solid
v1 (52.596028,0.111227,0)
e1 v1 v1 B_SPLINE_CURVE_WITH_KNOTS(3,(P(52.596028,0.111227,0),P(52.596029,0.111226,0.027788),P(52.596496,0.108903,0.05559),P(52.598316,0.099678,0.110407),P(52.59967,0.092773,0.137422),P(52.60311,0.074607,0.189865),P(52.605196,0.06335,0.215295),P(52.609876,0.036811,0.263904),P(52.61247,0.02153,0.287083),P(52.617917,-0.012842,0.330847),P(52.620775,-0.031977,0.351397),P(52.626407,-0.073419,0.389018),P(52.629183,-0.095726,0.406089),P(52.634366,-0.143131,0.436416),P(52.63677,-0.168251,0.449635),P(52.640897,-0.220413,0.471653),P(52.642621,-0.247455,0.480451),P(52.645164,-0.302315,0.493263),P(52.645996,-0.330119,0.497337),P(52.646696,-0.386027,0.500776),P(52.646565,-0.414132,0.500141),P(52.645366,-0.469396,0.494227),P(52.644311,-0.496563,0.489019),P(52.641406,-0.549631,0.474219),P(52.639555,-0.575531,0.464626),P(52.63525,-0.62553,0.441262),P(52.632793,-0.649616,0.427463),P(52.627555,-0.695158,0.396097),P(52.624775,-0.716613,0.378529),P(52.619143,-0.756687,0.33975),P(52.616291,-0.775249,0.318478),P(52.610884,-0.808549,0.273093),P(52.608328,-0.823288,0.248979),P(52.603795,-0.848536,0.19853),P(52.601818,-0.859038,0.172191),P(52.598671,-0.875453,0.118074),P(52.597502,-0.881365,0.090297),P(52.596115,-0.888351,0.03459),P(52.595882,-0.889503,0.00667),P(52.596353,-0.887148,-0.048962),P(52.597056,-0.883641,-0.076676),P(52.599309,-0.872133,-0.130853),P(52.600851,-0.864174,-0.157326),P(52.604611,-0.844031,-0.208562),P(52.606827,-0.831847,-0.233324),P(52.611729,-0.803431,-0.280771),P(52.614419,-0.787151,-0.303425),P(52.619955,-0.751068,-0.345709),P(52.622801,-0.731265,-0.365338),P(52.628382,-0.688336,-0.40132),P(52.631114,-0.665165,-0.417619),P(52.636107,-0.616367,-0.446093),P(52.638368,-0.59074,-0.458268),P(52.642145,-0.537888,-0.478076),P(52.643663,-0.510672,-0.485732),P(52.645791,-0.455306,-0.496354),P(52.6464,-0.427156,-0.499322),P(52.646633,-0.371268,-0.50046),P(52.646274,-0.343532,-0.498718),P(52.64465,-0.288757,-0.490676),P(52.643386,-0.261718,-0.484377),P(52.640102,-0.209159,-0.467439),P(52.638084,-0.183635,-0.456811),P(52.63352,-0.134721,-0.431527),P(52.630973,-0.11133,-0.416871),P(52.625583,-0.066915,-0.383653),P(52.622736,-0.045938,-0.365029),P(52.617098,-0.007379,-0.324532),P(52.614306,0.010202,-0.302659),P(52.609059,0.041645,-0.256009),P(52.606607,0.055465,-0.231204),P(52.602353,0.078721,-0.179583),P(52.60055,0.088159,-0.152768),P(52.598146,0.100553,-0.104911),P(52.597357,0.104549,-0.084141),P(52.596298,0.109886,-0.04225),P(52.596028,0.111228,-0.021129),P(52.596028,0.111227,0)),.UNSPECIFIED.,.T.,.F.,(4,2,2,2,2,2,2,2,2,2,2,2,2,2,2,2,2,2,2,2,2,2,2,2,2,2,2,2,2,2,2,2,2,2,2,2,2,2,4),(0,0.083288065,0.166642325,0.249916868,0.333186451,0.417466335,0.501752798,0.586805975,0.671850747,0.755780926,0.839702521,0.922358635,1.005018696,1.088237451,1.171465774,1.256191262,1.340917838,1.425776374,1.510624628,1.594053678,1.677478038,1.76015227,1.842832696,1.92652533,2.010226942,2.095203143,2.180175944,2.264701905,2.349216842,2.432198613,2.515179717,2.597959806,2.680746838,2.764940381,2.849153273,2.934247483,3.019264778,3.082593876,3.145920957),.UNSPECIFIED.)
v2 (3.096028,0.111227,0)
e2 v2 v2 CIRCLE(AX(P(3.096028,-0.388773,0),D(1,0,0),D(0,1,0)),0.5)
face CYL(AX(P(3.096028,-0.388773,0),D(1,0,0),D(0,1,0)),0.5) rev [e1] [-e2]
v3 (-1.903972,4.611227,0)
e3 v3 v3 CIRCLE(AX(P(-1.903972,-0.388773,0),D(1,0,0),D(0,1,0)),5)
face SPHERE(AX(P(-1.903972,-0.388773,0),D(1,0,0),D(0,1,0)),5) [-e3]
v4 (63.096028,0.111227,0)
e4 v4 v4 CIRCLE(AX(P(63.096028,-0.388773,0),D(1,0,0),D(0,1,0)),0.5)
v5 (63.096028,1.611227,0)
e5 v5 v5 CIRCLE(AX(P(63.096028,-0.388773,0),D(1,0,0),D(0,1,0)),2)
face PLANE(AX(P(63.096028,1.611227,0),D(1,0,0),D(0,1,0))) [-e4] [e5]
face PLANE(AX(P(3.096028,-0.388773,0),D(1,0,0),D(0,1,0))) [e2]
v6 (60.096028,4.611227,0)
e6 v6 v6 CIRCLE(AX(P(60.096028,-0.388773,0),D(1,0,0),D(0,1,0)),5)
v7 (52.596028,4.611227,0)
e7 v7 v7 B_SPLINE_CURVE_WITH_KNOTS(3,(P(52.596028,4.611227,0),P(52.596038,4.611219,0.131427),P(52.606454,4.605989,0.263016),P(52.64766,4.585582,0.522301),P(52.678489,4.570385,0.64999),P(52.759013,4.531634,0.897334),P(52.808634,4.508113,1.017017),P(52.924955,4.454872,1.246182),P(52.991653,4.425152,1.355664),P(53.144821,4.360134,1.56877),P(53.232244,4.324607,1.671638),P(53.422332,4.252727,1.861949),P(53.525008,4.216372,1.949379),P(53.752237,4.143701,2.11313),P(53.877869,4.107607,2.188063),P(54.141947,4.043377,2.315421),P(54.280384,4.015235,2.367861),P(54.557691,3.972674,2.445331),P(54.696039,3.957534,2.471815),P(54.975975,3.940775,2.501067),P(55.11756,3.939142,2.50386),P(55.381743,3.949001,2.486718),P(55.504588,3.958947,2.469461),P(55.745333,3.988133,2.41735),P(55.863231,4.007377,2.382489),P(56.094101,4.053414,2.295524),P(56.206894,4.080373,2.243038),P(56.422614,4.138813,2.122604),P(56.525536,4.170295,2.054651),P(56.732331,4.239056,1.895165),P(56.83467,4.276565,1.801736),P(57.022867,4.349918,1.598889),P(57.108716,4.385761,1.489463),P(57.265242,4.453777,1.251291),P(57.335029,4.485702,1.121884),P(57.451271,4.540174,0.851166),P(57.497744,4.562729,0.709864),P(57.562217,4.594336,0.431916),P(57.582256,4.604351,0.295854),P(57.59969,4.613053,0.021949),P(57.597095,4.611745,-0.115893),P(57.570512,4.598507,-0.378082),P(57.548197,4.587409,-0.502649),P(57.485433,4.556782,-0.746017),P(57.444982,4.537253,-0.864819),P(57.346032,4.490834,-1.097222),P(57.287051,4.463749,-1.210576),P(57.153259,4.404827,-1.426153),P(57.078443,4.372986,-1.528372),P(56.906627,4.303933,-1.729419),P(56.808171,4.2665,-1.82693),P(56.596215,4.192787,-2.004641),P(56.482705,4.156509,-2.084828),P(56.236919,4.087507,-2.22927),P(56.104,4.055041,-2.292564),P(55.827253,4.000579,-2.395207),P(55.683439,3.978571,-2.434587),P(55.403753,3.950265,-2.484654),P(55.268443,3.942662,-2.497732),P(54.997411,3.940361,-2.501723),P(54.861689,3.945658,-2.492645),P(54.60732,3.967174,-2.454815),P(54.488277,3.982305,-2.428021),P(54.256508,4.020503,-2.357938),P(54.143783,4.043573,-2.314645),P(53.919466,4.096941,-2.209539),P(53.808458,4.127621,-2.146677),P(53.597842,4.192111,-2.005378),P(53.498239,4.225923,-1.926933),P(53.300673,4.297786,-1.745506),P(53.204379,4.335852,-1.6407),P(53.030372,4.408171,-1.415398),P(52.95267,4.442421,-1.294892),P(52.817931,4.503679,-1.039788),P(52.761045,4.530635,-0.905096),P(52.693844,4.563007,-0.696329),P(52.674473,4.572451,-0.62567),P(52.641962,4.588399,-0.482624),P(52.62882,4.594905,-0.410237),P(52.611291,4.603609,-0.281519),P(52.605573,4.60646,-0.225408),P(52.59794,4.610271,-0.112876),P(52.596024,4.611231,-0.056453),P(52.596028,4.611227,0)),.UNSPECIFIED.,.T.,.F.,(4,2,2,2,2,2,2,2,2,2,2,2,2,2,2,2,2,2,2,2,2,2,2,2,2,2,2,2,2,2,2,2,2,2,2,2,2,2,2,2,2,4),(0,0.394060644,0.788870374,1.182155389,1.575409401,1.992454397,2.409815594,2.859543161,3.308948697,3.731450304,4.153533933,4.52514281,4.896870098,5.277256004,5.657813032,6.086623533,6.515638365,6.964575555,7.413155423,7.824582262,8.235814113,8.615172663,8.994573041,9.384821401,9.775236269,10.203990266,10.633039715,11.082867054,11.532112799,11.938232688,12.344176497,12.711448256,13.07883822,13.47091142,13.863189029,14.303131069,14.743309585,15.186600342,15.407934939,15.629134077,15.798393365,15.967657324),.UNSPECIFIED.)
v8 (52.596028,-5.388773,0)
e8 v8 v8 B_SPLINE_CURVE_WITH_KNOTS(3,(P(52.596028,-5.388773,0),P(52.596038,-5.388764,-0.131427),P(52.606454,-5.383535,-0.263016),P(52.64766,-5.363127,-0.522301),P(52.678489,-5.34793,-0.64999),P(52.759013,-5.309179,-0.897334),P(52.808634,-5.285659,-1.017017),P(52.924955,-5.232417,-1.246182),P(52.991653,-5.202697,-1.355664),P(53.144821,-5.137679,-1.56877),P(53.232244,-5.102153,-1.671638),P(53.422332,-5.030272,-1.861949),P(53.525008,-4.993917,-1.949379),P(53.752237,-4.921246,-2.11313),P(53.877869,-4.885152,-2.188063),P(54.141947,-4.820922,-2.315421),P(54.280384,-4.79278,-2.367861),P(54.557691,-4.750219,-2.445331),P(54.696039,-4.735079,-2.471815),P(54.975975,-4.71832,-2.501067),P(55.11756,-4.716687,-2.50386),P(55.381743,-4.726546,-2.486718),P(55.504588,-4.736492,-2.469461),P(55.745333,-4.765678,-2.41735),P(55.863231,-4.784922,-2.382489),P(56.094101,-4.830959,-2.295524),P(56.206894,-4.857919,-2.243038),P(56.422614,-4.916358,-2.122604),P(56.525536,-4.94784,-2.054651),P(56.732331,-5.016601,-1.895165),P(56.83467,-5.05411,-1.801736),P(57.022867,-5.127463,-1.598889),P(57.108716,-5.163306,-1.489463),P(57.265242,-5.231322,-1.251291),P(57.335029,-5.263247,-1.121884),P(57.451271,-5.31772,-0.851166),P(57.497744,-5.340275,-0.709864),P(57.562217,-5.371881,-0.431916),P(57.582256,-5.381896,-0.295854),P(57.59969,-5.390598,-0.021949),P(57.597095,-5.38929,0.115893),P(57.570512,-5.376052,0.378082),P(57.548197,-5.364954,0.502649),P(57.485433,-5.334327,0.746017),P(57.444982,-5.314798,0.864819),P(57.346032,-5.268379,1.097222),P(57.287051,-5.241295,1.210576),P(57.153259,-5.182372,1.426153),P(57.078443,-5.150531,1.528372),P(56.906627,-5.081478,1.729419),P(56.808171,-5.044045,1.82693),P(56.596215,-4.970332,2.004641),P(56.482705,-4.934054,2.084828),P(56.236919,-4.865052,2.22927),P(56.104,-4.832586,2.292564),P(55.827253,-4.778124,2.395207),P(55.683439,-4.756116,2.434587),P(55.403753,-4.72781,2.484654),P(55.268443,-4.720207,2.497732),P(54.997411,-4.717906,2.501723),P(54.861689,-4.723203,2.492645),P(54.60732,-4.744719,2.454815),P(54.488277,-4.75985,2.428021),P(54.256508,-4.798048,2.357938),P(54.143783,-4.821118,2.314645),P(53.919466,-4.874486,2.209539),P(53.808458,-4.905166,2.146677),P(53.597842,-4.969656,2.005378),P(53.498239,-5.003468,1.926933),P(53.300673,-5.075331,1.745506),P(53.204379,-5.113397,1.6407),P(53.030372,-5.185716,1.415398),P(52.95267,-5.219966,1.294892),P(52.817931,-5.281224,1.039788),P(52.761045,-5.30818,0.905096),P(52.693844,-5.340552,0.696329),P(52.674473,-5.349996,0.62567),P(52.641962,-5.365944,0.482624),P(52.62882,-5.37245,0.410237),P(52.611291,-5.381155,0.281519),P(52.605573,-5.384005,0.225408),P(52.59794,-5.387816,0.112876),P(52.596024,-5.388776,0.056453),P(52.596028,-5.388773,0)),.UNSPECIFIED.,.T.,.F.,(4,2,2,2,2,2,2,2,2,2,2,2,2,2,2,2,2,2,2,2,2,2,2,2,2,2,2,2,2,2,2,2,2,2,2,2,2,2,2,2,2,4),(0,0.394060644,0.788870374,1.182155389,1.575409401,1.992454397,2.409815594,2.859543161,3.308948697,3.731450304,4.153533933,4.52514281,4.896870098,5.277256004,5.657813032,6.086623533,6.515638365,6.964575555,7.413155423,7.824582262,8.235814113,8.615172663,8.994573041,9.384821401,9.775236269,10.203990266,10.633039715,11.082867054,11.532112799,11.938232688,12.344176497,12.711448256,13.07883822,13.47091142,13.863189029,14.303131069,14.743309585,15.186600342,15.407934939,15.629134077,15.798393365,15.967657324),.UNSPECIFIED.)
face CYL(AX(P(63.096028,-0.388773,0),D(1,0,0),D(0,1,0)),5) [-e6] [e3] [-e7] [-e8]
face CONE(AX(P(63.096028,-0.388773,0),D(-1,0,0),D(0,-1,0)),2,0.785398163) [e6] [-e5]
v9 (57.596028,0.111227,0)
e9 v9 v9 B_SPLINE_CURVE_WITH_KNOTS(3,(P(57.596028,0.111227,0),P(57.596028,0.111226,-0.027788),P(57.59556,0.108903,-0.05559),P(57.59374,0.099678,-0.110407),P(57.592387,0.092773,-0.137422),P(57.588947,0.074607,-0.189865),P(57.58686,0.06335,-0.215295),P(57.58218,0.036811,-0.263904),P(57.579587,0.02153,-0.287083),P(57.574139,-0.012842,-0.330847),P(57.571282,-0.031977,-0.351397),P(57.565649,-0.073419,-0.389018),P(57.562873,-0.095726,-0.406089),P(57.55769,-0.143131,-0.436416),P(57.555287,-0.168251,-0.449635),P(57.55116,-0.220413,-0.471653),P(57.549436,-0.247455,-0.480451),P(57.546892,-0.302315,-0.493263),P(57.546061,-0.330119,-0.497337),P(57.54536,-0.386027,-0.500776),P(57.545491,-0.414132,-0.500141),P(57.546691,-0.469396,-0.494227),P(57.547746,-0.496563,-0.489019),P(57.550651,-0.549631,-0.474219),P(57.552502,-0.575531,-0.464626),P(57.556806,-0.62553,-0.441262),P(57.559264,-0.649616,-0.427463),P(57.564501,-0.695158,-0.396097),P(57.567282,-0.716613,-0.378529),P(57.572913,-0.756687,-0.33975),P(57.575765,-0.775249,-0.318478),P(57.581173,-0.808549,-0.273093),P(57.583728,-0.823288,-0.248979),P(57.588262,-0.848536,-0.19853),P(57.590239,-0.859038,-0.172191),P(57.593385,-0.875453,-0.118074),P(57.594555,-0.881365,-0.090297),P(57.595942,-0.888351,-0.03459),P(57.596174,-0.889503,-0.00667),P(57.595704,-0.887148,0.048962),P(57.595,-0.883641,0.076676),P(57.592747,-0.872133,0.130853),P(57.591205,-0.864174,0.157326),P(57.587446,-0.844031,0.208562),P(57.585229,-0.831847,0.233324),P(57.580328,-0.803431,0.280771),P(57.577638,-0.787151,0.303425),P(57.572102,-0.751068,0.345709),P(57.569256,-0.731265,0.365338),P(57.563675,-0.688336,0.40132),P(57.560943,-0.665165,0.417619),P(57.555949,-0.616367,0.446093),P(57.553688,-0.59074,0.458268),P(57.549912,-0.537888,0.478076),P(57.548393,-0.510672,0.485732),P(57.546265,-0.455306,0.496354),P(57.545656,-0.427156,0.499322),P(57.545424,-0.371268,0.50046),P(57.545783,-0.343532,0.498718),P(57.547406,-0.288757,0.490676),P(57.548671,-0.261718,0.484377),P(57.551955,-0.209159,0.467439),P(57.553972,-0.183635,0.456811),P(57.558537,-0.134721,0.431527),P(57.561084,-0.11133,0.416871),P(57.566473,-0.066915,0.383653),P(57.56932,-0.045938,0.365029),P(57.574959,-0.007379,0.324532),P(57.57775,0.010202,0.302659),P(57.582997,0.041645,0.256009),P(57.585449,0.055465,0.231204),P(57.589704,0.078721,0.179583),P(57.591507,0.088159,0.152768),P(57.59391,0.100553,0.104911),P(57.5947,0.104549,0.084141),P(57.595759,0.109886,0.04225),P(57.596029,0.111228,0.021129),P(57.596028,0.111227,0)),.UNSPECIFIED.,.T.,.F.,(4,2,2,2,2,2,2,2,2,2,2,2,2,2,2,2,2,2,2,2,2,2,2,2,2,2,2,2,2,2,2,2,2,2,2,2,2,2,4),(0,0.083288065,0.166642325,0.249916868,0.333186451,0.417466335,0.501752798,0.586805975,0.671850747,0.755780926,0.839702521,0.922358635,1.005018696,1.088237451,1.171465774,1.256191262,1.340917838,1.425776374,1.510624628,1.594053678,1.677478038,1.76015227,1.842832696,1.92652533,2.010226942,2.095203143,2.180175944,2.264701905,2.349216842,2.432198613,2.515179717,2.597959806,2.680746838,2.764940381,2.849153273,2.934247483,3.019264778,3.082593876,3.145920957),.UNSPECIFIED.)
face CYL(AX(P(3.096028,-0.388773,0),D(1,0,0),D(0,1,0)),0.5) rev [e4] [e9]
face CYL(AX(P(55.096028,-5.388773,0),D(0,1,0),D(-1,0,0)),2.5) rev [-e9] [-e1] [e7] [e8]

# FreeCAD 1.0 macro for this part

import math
import FreeCAD as App
import Part
import Sketcher
from FreeCAD import Vector
Q = App.Units.Quantity

doc = App.newDocument("Part")
body = doc.addObject("PartDesign::Body", "Body")

sketch1 = body.newObject("Sketcher::SketchObject", "Sketch")
sketch1.AttachmentSupport = (doc.getObject("XY_Plane"), [""])
sketch1.MapMode = "FlatFace"
sketch1.addGeometry(Part.LineSegment(Vector(60.1, 4.6, 0), Vector(-1.9, 4.6, 0)), False)
sketch1.addGeometry(Part.ArcOfCircle(Part.Circle(Vector(-1.9, -0.4, 0), Vector(0, 0, 1), 5), math.radians(90), math.radians(180)), False)
sketch1.addGeometry(Part.LineSegment(Vector(-6.9, -0.4, 0), Vector(63.1, -0.4, 0)), False)
sketch1.addGeometry(Part.LineSegment(Vector(63.1, -0.4, 0), Vector(63.1, 1.6, 0)), False)
sketch1.addGeometry(Part.LineSegment(Vector(63.1, 1.6, 0), Vector(60.1, 4.6, 0)), False)
sketch1.addGeometry(Part.LineSegment(Vector(63.1, -0.4, 0), Vector(-6.9, -0.4, 0)), True)
sketch1.addConstraint(Sketcher.Constraint("Tangent", 0, 2, 1, 1))
sketch1.addConstraint(Sketcher.Constraint("Coincident", 1, 2, 2, 1))
sketch1.addConstraint(Sketcher.Constraint("Coincident", 2, 2, 3, 1))
sketch1.addConstraint(Sketcher.Constraint("Coincident", 3, 2, 4, 1))
sketch1.addConstraint(Sketcher.Constraint("Coincident", 4, 2, 0, 1))
sketch1.addConstraint(Sketcher.Constraint("Horizontal", 0))
sketch1.addConstraint(Sketcher.Constraint("Horizontal", 2))
sketch1.addConstraint(Sketcher.Constraint("Vertical", 3))
sketch1.addConstraint(Sketcher.Constraint("Horizontal", 5))
sketch1.addConstraint(Sketcher.Constraint("Coincident", 5, 1, 2, 2))
sketch1.addConstraint(Sketcher.Constraint("Equal", 2, 5))
sketch1.addConstraint(Sketcher.Constraint("Radius", 1, 5.0))
sketch1.addConstraint(Sketcher.Constraint("DistanceX", 0, 2, 0, 1, 62.0))
sketch1.addConstraint(Sketcher.Constraint("DistanceX", 2, 1, 2, 2, 70.0))
sketch1.addConstraint(Sketcher.Constraint("DistanceY", 3, 1, 3, 2, 2.0))
sketch1.addConstraint(Sketcher.Constraint("Angle", 4, Q("135 deg")))
sketch1.addConstraint(Sketcher.Constraint("DistanceX", 1, 3, -1, 1, 1.903972))
sketch1.addConstraint(Sketcher.Constraint("DistanceY", 1, 3, -1, 1, 0.388773))
revolution = body.newObject("PartDesign::Revolution", "Revolution")
revolution.Profile = sketch1
revolution.ReferenceAxis = (sketch1, ["Axis0"])
revolution.Angle = 360

sketch2 = body.newObject("Sketcher::SketchObject", "Sketch001")
sketch2.AttachmentSupport = (doc.getObject("YZ_Plane"), [""])
sketch2.MapMode = "FlatFace"
sketch2.AttachmentOffset = App.Placement(Vector(0, 0, 63.096028), App.Rotation())
sketch2.addGeometry(Part.Circle(Vector(-0.4, 0, 0), Vector(0, 0, 1), 0.5), False)
sketch2.addConstraint(Sketcher.Constraint("PointOnObject", 0, 3, -1))
sketch2.addConstraint(Sketcher.Constraint("Diameter", 0, 1.0))
sketch2.addConstraint(Sketcher.Constraint("DistanceX", 0, 3, -1, 1, 0.388773))
pocket1 = body.newObject("PartDesign::Pocket", "Pocket")
pocket1.Profile = sketch2
pocket1.Length = 60

sketch3 = body.newObject("Sketcher::SketchObject", "Sketch002")
sketch3.AttachmentSupport = (doc.getObject("XZ_Plane"), [""])
sketch3.MapMode = "FlatFace"
sketch3.AttachmentOffset = App.Placement(Vector(0, 0, -4.611227), App.Rotation())
sketch3.addGeometry(Part.Circle(Vector(55.1, 0, 0), Vector(0, 0, 1), 2.5), False)
sketch3.addConstraint(Sketcher.Constraint("PointOnObject", 0, 3, -1))
sketch3.addConstraint(Sketcher.Constraint("Diameter", 0, 5.0))
sketch3.addConstraint(Sketcher.Constraint("DistanceX", -1, 1, 0, 3, 55.096028))
pocket2 = body.newObject("PartDesign::Pocket", "Pocket001")
pocket2.Profile = sketch3
pocket2.Type = "ThroughAll"
pocket2.Midplane = True

doc.recompute()
